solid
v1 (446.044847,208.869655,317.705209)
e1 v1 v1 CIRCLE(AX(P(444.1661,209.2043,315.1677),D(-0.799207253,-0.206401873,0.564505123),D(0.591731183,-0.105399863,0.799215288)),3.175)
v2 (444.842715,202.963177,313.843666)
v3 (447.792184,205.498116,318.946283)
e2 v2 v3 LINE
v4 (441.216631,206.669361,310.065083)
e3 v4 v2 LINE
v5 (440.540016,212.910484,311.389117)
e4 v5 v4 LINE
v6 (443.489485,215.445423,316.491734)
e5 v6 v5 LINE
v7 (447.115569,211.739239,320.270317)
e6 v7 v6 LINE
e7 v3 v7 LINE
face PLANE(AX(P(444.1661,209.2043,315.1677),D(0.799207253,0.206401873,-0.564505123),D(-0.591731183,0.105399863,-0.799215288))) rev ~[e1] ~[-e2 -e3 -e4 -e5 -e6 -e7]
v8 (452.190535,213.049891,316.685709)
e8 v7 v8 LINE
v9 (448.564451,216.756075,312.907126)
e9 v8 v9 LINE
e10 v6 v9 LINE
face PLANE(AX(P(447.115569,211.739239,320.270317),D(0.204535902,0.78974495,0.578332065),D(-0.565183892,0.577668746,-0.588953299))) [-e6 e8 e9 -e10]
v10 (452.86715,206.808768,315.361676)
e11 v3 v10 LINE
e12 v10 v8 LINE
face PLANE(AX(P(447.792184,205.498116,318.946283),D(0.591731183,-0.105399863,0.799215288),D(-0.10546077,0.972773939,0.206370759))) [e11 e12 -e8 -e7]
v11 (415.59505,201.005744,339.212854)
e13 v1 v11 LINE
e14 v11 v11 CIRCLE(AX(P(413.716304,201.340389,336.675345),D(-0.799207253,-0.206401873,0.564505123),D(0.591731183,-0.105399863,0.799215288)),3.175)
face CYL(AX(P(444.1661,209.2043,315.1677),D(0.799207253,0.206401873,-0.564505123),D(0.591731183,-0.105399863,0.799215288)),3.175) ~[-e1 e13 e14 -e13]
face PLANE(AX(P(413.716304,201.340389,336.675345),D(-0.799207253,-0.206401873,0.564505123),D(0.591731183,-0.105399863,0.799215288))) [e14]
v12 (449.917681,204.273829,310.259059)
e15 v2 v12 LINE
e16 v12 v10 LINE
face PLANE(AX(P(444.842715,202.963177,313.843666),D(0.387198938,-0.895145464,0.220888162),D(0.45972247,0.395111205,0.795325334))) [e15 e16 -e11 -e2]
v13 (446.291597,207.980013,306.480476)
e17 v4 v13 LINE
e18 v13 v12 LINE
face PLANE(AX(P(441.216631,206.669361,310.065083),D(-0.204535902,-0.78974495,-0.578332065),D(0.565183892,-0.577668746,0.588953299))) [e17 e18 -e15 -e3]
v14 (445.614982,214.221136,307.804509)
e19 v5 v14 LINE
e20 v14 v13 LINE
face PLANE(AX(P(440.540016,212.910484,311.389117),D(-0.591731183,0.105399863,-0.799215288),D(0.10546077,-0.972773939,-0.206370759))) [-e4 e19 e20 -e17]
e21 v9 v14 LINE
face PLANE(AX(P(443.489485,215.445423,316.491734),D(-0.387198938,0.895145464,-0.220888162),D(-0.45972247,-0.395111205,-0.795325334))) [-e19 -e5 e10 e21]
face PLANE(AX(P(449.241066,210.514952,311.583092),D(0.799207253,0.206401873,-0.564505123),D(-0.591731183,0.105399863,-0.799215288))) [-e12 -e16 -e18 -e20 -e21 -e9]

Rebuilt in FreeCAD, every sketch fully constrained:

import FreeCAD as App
import Part
import Sketcher
from FreeCAD import Vector
Q = App.Units.Quantity

doc = App.newDocument("Part")
body = doc.addObject("PartDesign::Body", "Body")

sketch1 = body.newObject("Sketcher::SketchObject", "Sketch")
sketch1.Placement = App.Placement(Vector(444.1661, 209.2043, 315.1677), App.Rotation(Vector(-0.591731183, 0.105399863, -0.799215288), Vector(-0.10546077, 0.972773939, 0.206370759), Vector(0.799207253, 0.206401873, -0.564505123), "ZXY"))
sketch1.addGeometry([
    Part.LineSegment(Vector(5.5562, 3.2079, 0), Vector(0, 6.4158, 0)),
    Part.LineSegment(Vector(0, 6.4158, 0), Vector(-5.5562, 3.2079, 0)),
    Part.LineSegment(Vector(-5.5562, 3.2079, 0), Vector(-5.5562, -3.2079, 0)),
    Part.LineSegment(Vector(-5.5562, -3.2079, 0), Vector(0, -6.4158, 0)),
    Part.LineSegment(Vector(0, -6.4158, 0), Vector(5.5562, -3.2079, 0)),
    Part.LineSegment(Vector(5.5562, -3.2079, 0), Vector(5.5562, 3.2079, 0)),
], False)
sketch1.addConstraint([
    Sketcher.Constraint("Coincident", 0, 2, 1, 1),
    Sketcher.Constraint("Coincident", 1, 2, 2, 1),
    Sketcher.Constraint("Coincident", 2, 2, 3, 1),
    Sketcher.Constraint("Coincident", 3, 2, 4, 1),
    Sketcher.Constraint("Coincident", 4, 2, 5, 1),
    Sketcher.Constraint("Coincident", 5, 2, 0, 1),
    Sketcher.Constraint("Vertical", 2),
    Sketcher.Constraint("Vertical", 5),
    Sketcher.Constraint("Symmetric", 0, 2, 3, 2, -1, 1),
    Sketcher.Constraint("Symmetric", 1, 2, 4, 2, -1, 1),
    Sketcher.Constraint("PointOnObject", 0, 2, -2),
    Sketcher.Constraint("Parallel", 0, 3),
    Sketcher.Constraint("Horizontal", 2, 2, 4, 2),
    Sketcher.Constraint("Angle", 0, Q("149.9998 deg")),
    Sketcher.Constraint("DistanceX", 2, 2, 4, 2, Q("0.4375 in")),
    Sketcher.Constraint("DistanceY", 2, 2, 2, 1, Q("0.2526 in")),
])
pad1 = body.newObject("PartDesign::Pad", "Pad")
pad1.Profile = sketch1
pad1.Length = Q("0.25 in")

sketch2 = body.newObject("Sketcher::SketchObject", "Sketch001")
sketch2.Placement = App.Placement(Vector(444.1661, 209.2043, 315.1677), App.Rotation(Vector(0.591731183, -0.105399863, 0.799215288), Vector(-0.10546077, 0.972773939, 0.206370759), Vector(-0.799207253, -0.206401873, 0.564505123), "ZXY"))
sketch2.addGeometry(Part.Circle(Vector(0, 0, 0), Vector(0, 0, 1), 3.175), False)
sketch2.addConstraint([
    Sketcher.Constraint("Coincident", 0, 3, -1, 1),
    Sketcher.Constraint("Diameter", 0, Q("0.25 in")),
])
pad2 = body.newObject("PartDesign::Pad", "Pad001")
pad2.Profile = sketch2
pad2.Length = Q("1.5 in")

doc.recompute()
